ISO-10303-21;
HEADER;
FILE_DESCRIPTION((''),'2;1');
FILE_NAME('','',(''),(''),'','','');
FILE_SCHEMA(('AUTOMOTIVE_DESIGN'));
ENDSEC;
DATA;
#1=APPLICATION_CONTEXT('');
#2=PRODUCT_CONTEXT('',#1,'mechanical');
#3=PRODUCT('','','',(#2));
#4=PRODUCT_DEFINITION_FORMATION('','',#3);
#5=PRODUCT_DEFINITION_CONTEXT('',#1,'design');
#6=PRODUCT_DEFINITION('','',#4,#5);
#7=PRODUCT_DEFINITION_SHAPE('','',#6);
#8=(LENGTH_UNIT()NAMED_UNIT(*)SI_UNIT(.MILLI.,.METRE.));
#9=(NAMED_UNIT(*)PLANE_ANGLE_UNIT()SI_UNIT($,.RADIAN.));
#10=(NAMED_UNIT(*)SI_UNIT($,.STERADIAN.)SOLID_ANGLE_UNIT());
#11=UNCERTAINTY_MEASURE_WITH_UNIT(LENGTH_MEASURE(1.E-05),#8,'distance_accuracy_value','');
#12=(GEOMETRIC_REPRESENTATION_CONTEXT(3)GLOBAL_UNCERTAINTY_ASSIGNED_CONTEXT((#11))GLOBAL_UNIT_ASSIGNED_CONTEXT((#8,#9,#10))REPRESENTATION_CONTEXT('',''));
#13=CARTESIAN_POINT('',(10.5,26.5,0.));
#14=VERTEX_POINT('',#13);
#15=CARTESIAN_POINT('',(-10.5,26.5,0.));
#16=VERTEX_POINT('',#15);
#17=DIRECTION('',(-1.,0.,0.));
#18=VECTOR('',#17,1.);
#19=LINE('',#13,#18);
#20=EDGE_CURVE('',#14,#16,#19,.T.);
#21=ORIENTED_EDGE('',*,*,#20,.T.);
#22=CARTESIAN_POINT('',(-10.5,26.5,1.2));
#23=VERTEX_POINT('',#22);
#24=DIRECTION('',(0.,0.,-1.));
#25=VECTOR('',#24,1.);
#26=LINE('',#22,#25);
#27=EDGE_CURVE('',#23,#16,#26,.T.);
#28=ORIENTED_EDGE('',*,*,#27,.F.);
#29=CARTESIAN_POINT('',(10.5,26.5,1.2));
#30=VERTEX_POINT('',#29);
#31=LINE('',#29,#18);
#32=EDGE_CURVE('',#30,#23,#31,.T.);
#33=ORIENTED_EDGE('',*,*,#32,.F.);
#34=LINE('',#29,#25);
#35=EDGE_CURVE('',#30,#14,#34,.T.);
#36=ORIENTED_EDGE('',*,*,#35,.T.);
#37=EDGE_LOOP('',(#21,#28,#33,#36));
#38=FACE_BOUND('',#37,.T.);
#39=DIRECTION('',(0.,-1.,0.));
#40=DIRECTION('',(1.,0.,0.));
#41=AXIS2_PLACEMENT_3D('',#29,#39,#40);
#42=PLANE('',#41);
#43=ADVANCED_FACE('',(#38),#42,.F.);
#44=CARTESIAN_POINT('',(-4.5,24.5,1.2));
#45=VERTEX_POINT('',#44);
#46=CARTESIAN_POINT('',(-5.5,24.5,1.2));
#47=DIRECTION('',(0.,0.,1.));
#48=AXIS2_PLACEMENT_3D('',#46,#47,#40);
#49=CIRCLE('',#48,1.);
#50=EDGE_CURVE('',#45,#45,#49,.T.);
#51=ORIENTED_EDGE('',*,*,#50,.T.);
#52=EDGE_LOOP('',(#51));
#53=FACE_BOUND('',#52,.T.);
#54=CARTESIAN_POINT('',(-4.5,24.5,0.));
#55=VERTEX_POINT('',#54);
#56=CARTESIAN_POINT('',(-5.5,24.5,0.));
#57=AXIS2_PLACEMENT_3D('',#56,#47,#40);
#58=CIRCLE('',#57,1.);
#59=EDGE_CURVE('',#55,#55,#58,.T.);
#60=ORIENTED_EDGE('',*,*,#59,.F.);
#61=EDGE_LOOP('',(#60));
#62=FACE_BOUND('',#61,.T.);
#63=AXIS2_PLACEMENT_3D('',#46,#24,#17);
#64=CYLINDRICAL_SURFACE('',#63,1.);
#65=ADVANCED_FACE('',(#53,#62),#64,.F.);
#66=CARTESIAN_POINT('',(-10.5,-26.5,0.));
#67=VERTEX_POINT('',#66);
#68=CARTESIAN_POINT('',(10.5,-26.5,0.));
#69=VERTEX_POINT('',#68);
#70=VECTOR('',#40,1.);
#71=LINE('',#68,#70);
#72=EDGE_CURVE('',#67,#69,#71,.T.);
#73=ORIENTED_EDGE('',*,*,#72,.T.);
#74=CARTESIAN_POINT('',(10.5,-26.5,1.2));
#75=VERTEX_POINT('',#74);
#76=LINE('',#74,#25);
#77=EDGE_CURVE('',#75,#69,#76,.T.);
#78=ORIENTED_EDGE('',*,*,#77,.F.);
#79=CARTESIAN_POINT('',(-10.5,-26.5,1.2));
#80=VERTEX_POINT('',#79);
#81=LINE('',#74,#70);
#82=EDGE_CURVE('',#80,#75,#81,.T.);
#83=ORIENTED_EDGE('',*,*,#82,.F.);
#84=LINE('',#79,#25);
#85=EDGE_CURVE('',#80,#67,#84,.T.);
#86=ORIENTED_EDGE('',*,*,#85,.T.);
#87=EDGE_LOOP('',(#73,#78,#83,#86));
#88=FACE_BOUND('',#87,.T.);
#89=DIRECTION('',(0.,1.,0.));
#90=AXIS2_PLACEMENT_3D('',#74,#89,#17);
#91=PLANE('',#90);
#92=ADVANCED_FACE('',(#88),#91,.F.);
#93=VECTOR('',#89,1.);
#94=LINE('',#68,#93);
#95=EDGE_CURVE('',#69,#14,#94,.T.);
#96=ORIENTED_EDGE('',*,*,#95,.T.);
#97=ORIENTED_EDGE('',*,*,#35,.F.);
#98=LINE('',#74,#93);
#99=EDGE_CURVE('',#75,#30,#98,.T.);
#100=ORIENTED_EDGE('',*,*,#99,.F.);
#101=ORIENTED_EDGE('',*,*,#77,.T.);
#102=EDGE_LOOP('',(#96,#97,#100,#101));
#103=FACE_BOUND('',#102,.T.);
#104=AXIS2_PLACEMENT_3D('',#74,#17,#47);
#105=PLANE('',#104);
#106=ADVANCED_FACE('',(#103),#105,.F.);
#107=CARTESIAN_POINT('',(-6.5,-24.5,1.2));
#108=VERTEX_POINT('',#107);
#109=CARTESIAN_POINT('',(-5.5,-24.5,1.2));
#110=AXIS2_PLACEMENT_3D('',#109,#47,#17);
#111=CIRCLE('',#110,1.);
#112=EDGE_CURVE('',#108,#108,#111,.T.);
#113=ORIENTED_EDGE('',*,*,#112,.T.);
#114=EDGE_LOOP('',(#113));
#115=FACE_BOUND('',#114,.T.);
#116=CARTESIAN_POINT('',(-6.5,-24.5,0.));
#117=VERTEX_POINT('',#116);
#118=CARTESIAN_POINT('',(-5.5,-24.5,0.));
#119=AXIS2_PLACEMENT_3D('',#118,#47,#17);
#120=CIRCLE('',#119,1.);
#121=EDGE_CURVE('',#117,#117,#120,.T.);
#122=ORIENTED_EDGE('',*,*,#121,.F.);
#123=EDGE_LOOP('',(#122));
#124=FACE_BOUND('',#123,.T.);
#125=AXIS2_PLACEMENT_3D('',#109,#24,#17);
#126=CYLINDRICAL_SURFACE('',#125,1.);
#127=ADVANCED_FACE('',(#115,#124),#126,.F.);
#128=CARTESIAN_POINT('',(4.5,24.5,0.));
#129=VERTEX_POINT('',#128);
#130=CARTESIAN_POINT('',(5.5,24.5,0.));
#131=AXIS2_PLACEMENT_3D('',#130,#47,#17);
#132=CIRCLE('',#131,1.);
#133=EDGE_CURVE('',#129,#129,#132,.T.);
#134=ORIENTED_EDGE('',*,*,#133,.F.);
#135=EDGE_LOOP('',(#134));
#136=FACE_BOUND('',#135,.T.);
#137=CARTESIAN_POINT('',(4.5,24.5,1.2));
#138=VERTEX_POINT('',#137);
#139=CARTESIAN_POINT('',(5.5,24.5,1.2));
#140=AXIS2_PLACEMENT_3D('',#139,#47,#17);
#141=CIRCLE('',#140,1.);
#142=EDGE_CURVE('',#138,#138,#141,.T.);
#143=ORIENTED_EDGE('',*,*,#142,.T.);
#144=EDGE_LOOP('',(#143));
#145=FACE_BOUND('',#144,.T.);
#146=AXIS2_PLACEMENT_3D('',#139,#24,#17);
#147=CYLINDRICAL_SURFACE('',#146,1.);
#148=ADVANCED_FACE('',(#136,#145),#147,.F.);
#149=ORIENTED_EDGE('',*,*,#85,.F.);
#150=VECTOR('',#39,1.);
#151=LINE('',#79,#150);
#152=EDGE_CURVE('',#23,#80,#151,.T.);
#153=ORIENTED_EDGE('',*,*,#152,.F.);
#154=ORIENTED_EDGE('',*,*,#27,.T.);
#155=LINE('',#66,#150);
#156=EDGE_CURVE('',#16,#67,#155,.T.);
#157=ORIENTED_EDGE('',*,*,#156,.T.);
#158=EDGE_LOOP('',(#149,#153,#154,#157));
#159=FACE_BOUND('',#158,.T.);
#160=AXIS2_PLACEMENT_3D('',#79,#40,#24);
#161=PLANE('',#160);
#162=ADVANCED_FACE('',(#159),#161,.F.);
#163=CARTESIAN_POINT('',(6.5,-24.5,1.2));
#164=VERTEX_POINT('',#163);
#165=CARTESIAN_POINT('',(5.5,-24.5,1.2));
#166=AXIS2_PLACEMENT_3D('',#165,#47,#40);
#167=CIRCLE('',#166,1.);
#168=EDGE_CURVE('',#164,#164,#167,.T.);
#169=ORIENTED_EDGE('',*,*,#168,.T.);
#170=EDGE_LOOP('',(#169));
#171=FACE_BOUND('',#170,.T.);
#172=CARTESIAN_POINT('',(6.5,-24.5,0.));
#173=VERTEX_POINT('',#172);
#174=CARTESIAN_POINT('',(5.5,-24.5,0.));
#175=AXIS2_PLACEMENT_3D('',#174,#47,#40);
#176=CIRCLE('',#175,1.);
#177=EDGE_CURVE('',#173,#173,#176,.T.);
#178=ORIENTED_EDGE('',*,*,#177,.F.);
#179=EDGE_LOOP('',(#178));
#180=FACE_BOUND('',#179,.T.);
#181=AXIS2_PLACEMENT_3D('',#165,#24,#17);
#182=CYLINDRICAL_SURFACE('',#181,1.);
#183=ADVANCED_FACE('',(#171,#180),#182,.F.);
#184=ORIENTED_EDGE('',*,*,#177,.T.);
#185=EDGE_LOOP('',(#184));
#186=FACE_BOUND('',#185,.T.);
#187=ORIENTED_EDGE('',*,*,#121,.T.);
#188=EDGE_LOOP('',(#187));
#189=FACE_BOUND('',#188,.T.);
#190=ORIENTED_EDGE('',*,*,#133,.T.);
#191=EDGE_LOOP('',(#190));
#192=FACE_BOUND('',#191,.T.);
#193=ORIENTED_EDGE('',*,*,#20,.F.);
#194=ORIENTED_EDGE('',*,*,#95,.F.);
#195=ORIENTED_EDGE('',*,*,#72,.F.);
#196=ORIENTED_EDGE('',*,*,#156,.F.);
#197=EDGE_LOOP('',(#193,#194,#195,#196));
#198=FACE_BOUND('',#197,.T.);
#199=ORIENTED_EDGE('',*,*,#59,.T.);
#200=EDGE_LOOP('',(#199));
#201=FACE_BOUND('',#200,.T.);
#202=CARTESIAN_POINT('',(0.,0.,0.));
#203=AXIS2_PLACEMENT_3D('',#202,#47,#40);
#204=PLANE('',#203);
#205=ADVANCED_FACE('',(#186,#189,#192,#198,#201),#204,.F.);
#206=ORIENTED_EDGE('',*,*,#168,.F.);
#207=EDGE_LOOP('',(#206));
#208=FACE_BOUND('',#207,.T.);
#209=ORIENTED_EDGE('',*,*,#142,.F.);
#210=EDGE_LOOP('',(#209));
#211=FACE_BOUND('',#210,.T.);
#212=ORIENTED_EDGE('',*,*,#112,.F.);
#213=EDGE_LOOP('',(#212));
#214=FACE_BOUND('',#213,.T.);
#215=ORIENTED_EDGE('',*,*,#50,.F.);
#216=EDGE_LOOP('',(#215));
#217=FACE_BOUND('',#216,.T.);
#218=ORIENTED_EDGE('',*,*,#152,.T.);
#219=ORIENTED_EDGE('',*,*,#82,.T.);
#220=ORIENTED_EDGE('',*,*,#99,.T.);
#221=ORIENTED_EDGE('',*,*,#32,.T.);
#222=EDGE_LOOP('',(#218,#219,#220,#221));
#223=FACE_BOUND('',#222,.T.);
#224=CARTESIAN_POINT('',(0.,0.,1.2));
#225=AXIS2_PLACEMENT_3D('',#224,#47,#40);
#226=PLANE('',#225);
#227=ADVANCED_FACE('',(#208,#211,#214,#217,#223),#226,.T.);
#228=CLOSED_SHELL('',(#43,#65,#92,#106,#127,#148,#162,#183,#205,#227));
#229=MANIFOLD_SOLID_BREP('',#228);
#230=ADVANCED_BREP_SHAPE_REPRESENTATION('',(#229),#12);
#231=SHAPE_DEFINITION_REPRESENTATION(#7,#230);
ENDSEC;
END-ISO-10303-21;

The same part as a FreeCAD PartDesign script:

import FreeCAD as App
import Part
import Sketcher


def add_polygon(sketch, points):
    """Adds a closed chain of lines whose ends are joined by coincident constraints."""
    first, n = sketch.GeometryCount, len(points)
    for a, b in zip(points, points[1:] + points[:1]):
        sketch.addGeometry(Part.LineSegment(App.Vector(*a, 0), App.Vector(*b, 0)), False)
    for i in range(n):
        sketch.addConstraint(Sketcher.Constraint("Coincident", first + i, 2, first + (i + 1) % n, 1))

doc = App.newDocument("Part")
params = doc.addObject("Spreadsheet::Sheet", "Params")
for row, (alias, value) in enumerate([
    ("sketch1_diameter", "2 mm"),
    ("sketch1_width", "21 mm"),
    ("sketch1_height", "53 mm"),
    ("pad1_length", "1.2 mm"),
], start=1):
    params.set(f"A{row}", alias)
    params.set(f"B{row}", "=" + value)
    params.setAlias(f"B{row}", alias)

body = doc.addObject("PartDesign::Body", "Body")

# Sketch on XY plane
sketch1 = doc.addObject("Sketcher::SketchObject", "Sketch")
body.addObject(sketch1)
sketch1.AttachmentSupport = (doc.XY_Plane, [""])
sketch1.MapMode = "FlatFace"
add_polygon(sketch1, [(-10.5, 26.5), (-10.5, -26.5), (10.5, -26.5), (10.5, 26.5)])  # lines 0-3
sketch1.addGeometry(Part.Circle(App.Vector(-5.5, -24.5, 0), App.Vector(0, 0, 1), 1), False)  # 4
sketch1.addGeometry(Part.Circle(App.Vector(5.5, -24.5, 0), App.Vector(0, 0, 1), 1), False)  # 5
sketch1.addGeometry(Part.Circle(App.Vector(-5.5, 24.5, 0), App.Vector(0, 0, 1), 1), False)  # 6
sketch1.addGeometry(Part.Circle(App.Vector(5.5, 24.5, 0), App.Vector(0, 0, 1), 1), False)  # 7
sketch1.addConstraint(Sketcher.Constraint("Vertical", 0))
sketch1.addConstraint(Sketcher.Constraint("Horizontal", 1))
sketch1.addConstraint(Sketcher.Constraint("Vertical", 2))
sketch1.addConstraint(Sketcher.Constraint("Horizontal", 3))
sketch1.addConstraint(Sketcher.Constraint("Equal", 4, 5))
sketch1.addConstraint(Sketcher.Constraint("Equal", 5, 6))
sketch1.addConstraint(Sketcher.Constraint("Equal", 6, 7))
sketch1.addConstraint(Sketcher.Constraint("Symmetric", 5, 3, 6, 3, -1, 1))
sketch1.addConstraint(Sketcher.Constraint("Symmetric", 4, 3, 7, 3, -1, 1))
sketch1.addConstraint(Sketcher.Constraint("Symmetric", 0, 2, 2, 2, -1, 1))
sketch1.addConstraint(Sketcher.Constraint("Symmetric", 4, 3, 5, 3, -2))
sketch1.addConstraint(Sketcher.Constraint("Diameter", 4, 2.0))
sketch1.addConstraint(Sketcher.Constraint("DistanceX", 1, 1, 1, 2, 21.0))
sketch1.addConstraint(Sketcher.Constraint("DistanceY", 0, 2, 0, 1, 53.0))
sketch1.addConstraint(Sketcher.Constraint("DistanceX", 4, 3, 5, 3, 11.0))
sketch1.addConstraint(Sketcher.Constraint("DistanceY", 4, 3, 6, 3, 49.0))
sketch1.setExpression("Constraints[15]", "Params.sketch1_diameter")
sketch1.setExpression("Constraints[16]", "Params.sketch1_width")
sketch1.setExpression("Constraints[17]", "Params.sketch1_height")
pad1 = doc.addObject("PartDesign::Pad", "Pad")
body.addObject(pad1)
pad1.Profile = sketch1
pad1.setExpression("Length", "Params.pad1_length")

doc.recompute()
